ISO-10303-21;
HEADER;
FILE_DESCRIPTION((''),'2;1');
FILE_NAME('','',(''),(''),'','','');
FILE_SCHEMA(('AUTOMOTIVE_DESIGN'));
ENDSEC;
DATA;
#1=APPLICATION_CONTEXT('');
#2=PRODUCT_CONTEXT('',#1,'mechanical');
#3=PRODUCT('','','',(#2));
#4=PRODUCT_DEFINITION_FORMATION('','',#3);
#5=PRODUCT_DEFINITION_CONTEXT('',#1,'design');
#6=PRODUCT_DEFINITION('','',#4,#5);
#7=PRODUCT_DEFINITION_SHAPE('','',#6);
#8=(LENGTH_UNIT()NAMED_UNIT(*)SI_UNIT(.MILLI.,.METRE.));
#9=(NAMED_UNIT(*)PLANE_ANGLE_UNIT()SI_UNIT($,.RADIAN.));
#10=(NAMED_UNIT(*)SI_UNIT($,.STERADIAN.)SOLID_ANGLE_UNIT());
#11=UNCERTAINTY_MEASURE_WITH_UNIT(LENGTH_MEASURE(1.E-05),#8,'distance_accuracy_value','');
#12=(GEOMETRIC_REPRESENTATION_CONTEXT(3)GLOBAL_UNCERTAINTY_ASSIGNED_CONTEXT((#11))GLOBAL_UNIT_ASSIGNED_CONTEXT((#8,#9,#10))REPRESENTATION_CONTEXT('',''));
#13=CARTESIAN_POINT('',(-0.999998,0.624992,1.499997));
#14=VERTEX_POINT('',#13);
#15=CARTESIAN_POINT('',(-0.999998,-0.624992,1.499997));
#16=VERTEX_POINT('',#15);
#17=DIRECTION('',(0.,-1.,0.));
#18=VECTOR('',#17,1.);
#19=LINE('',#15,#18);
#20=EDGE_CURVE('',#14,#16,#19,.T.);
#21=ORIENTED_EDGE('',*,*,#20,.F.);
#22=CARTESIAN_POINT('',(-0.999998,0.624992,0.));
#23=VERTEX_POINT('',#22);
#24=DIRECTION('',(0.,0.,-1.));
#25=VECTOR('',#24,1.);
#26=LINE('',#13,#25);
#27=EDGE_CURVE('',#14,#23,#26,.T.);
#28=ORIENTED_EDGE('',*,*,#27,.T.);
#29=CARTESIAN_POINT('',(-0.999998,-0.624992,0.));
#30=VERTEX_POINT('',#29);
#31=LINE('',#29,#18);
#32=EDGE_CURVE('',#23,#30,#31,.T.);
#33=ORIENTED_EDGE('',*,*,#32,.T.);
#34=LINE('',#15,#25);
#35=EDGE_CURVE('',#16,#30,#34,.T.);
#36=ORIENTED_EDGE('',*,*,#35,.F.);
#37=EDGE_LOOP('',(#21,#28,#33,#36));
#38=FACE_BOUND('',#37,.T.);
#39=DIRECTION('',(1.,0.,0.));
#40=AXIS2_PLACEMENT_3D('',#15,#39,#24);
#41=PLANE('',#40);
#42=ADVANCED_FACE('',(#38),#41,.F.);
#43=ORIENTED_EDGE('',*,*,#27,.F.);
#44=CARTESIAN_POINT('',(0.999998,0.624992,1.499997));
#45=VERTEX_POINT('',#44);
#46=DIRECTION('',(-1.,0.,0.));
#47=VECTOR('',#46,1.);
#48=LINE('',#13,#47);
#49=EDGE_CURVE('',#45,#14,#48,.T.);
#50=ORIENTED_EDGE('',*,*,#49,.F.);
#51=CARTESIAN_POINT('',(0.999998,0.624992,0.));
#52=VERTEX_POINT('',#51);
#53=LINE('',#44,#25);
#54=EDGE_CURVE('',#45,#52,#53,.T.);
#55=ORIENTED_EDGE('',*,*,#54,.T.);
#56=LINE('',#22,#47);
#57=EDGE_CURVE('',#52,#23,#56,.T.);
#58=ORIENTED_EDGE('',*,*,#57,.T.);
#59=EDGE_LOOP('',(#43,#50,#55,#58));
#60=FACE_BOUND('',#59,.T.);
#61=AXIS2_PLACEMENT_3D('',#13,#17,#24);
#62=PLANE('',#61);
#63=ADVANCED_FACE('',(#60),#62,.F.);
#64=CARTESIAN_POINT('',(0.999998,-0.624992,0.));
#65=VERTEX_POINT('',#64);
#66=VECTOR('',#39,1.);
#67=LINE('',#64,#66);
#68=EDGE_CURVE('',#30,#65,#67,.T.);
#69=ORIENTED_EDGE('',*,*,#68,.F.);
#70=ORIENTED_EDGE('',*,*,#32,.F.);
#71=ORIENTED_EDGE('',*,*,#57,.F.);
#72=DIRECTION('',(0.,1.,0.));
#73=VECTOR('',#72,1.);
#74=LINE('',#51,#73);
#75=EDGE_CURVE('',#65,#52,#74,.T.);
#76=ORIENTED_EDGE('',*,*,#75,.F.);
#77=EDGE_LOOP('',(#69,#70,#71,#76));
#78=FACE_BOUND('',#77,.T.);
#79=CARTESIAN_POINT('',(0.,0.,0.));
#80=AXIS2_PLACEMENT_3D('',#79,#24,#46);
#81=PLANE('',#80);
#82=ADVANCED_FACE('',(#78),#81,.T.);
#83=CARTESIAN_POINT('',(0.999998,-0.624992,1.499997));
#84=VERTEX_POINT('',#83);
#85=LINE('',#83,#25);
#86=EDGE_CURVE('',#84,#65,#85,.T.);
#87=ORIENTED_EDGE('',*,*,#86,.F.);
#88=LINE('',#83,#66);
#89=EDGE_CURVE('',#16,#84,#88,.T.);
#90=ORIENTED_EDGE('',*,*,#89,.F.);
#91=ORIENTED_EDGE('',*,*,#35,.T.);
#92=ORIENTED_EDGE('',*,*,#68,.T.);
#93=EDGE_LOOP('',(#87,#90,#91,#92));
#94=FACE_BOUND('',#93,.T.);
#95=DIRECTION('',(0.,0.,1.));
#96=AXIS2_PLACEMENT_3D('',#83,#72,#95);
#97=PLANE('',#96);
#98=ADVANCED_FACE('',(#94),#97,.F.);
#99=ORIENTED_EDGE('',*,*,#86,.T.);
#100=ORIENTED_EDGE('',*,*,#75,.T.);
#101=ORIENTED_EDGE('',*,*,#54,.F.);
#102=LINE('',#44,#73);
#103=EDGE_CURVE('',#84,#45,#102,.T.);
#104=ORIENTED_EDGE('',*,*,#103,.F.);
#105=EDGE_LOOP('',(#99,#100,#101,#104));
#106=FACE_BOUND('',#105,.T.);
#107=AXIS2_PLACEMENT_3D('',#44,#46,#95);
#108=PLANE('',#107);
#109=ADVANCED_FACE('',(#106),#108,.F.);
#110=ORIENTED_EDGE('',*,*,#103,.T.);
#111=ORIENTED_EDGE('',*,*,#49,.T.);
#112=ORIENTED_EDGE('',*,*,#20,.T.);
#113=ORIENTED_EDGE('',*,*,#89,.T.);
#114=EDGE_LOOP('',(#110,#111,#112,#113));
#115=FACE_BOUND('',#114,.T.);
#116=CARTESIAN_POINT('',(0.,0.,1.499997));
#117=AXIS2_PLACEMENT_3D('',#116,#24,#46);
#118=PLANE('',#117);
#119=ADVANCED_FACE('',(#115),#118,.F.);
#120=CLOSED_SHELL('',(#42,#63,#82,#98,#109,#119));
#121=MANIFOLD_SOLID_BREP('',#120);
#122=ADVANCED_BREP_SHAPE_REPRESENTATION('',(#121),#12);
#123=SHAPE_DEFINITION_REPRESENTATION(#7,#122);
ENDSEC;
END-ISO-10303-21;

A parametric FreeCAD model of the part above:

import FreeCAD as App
import Part
import Sketcher
from FreeCAD import Vector
Q = App.Units.Quantity


def add_polygon(sketch, points):
    """Adds a closed chain of lines whose ends are joined by coincident constraints."""
    first, n = sketch.GeometryCount, len(points)
    for a, b in zip(points, points[1:] + points[:1]):
        sketch.addGeometry(Part.LineSegment(App.Vector(*a, 0), App.Vector(*b, 0)), False)
    for i in range(n):
        sketch.addConstraint(Sketcher.Constraint("Coincident", first + i, 2, first + (i + 1) % n, 1))

doc = App.newDocument("Part")
params = doc.addObject("Spreadsheet::Sheet", "Params")
for row, (alias, value) in enumerate([
    ("pad1_length", "1.499997 mm"),
], start=1):
    params.set(f"A{row}", alias)
    params.set(f"B{row}", "=" + value)
    params.setAlias(f"B{row}", alias)

body = doc.addObject("PartDesign::Body", "Body")

sketch1 = doc.addObject("Sketcher::SketchObject", "Sketch")
body.addObject(sketch1)
sketch1.AttachmentSupport = (doc.XY_Plane, [""])
sketch1.MapMode = "FlatFace"
add_polygon(sketch1, [(-0.999998, 0.624992), (-0.999998, -0.624992), (0.999998, -0.624992), (0.999998, 0.624992)])
sketch1.addConstraint(Sketcher.Constraint("Vertical", 0))
sketch1.addConstraint(Sketcher.Constraint("Horizontal", 1))
sketch1.addConstraint(Sketcher.Constraint("Vertical", 2))
sketch1.addConstraint(Sketcher.Constraint("Horizontal", 3))
sketch1.addConstraint(Sketcher.Constraint("Symmetric", 0, 2, 2, 2, -1, 1))
sketch1.addConstraint(Sketcher.Constraint("DistanceX", 0, 2, -1, 1, Q("0.999998 mm")))
sketch1.addConstraint(Sketcher.Constraint("DistanceY", 0, 2, 0, 1, Q("1.249985 mm")))
pad1 = doc.addObject("PartDesign::Pad", "Pad")
body.addObject(pad1)
pad1.Profile = sketch1
pad1.setExpression("Length", "Params.pad1_length")

doc.recompute()
